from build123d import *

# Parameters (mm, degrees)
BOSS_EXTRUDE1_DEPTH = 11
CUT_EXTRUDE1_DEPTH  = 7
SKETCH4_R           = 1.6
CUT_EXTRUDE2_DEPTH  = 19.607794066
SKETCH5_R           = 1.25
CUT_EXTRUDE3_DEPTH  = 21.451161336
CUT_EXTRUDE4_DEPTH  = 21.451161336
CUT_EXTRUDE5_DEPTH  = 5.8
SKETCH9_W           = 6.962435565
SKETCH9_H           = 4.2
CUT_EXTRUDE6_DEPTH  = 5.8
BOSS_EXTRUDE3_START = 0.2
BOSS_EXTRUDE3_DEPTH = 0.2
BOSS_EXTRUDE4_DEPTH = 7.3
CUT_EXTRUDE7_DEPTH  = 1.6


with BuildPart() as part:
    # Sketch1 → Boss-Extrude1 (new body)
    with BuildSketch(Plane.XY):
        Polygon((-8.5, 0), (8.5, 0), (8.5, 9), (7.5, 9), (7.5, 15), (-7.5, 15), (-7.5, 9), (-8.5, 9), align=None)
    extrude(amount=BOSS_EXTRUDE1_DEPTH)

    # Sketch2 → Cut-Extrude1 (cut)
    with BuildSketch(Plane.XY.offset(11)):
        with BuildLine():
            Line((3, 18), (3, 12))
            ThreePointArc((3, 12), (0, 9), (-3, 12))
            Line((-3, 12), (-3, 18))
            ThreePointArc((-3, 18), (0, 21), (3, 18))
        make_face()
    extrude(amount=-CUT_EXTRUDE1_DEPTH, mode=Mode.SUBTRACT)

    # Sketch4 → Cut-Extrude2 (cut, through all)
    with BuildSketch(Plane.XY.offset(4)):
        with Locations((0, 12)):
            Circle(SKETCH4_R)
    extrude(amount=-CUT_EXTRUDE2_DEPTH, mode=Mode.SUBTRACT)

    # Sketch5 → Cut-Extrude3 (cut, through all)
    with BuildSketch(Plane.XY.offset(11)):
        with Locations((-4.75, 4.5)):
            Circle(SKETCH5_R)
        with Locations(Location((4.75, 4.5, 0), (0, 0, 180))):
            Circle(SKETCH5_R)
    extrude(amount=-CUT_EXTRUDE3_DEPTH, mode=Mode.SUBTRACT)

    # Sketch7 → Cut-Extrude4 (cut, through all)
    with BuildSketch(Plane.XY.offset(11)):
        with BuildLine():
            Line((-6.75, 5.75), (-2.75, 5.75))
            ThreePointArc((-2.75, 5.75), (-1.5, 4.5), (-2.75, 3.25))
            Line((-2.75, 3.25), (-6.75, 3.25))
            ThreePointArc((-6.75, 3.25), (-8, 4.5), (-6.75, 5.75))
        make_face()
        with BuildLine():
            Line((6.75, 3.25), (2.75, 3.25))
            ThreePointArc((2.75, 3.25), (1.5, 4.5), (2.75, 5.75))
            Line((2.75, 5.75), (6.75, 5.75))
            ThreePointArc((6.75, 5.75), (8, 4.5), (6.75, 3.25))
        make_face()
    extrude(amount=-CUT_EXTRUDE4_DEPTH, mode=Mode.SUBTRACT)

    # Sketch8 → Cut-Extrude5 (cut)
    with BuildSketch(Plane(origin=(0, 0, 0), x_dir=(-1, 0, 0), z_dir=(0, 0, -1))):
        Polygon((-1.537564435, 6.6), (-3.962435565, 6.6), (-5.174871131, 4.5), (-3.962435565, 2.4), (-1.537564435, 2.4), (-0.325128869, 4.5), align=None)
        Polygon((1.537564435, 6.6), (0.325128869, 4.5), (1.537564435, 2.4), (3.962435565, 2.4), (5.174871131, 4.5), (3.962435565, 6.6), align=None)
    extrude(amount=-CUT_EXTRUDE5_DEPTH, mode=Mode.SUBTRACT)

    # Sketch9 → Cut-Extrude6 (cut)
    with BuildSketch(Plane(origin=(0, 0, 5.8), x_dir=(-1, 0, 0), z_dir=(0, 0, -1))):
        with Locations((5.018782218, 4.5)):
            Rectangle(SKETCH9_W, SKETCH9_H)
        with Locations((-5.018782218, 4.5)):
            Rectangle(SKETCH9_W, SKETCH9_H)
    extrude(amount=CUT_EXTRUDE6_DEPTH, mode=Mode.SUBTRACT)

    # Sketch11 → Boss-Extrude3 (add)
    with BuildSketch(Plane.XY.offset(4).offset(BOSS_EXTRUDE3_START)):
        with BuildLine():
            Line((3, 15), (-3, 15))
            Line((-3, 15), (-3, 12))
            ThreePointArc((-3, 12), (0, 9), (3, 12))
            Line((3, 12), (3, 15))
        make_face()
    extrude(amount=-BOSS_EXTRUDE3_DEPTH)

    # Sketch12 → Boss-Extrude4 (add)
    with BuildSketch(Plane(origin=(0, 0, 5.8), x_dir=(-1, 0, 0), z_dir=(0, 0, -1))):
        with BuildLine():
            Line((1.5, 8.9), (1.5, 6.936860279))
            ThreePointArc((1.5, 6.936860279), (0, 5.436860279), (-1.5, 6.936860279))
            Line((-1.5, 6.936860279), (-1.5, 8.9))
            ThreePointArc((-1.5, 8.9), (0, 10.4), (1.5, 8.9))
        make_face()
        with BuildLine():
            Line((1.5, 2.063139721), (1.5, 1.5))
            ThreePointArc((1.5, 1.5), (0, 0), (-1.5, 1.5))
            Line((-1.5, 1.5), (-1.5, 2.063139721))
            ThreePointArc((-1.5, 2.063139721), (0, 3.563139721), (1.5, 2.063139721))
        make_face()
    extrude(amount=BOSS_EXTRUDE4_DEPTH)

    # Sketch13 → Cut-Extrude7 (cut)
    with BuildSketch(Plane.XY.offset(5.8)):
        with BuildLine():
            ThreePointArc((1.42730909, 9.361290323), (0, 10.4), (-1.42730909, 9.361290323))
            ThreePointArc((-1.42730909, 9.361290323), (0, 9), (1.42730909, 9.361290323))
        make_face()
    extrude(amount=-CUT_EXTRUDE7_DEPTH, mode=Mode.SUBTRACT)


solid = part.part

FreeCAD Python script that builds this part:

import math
import FreeCAD as App
import Part
import Sketcher

V = App.Vector
Q = App.Units.Quantity


def add_polygon(sketch, points):
    """Adds a closed chain of lines whose ends are joined by coincident constraints."""
    first, n = sketch.GeometryCount, len(points)
    for a, b in zip(points, points[1:] + points[:1]):
        sketch.addGeometry(Part.LineSegment(App.Vector(*a, 0), App.Vector(*b, 0)), False)
    for i in range(n):
        sketch.addConstraint(Sketcher.Constraint("Coincident", first + i, 2, first + (i + 1) % n, 1))

doc = App.newDocument("Part")
body = doc.addObject("PartDesign::Body", "Body")

# Sketch on XY plane
sketch1 = doc.addObject("Sketcher::SketchObject", "Sketch")
body.addObject(sketch1)
sketch1.AttachmentSupport = (doc.XY_Plane, [""])
sketch1.MapMode = "FlatFace"
add_polygon(sketch1, [(-8.5, 0), (8.5, 0), (8.5, 9), (7.5, 9), (7.5, 15), (-7.5, 15), (-7.5, 9), (-8.5, 9)])  # lines 0-7
sketch1.addConstraint(Sketcher.Constraint("Horizontal", 0))
sketch1.addConstraint(Sketcher.Constraint("Vertical", 1))
sketch1.addConstraint(Sketcher.Constraint("Horizontal", 2))
sketch1.addConstraint(Sketcher.Constraint("Vertical", 3))
sketch1.addConstraint(Sketcher.Constraint("Horizontal", 4))
sketch1.addConstraint(Sketcher.Constraint("Vertical", 5))
sketch1.addConstraint(Sketcher.Constraint("Horizontal", 6))
sketch1.addConstraint(Sketcher.Constraint("Vertical", 7))
sketch1.addConstraint(Sketcher.Constraint("Symmetric", 0, 2, 7, 2, -1, 1))
sketch1.addConstraint(Sketcher.Constraint("Symmetric", 2, 2, 5, 2, -2))
sketch1.addConstraint(Sketcher.Constraint("DistanceX", 0, 1, 0, 2, 17.0))
sketch1.addConstraint(Sketcher.Constraint("DistanceX", 2, 2, 2, 1, 1.0))
sketch1.addConstraint(Sketcher.Constraint("DistanceY", 1, 1, 1, 2, 9.0))
sketch1.addConstraint(Sketcher.Constraint("DistanceY", 3, 1, 3, 2, 6.0))
pad1 = doc.addObject("PartDesign::Pad", "Pad")
body.addObject(pad1)
pad1.Profile = sketch1
pad1.Length = 11

# Sketch on XY plane
sketch2 = doc.addObject("Sketcher::SketchObject", "Sketch001")
body.addObject(sketch2)
sketch2.AttachmentSupport = (doc.XY_Plane, [""])
sketch2.MapMode = "FlatFace"
sketch2.AttachmentOffset = App.Placement(V(0, 0, 11), App.Rotation())
sketch2.addGeometry(Part.LineSegment(V(3, 12, 0), V(3, 18, 0)), False)
sketch2.addGeometry(Part.ArcOfCircle(Part.Circle(V(0, 18, 0), V(0, 0, 1), 3), math.radians(0), math.radians(180)), False)
sketch2.addGeometry(Part.LineSegment(V(-3, 18, 0), V(-3, 12, 0)), False)
sketch2.addGeometry(Part.ArcOfCircle(Part.Circle(V(0, 12, 0), V(0, 0, 1), 3), math.radians(180), math.radians(360)), False)
sketch2.addConstraint(Sketcher.Constraint("Tangent", 0, 2, 1, 1))
sketch2.addConstraint(Sketcher.Constraint("Tangent", 1, 2, 2, 1))
sketch2.addConstraint(Sketcher.Constraint("Tangent", 2, 2, 3, 1))
sketch2.addConstraint(Sketcher.Constraint("Tangent", 3, 2, 0, 1))
sketch2.addConstraint(Sketcher.Constraint("Vertical", 0))
sketch2.addConstraint(Sketcher.Constraint("Vertical", 2))
sketch2.addConstraint(Sketcher.Constraint("PointOnObject", 1, 3, -2))
sketch2.addConstraint(Sketcher.Constraint("Radius", 1, 3.0))
sketch2.addConstraint(Sketcher.Constraint("DistanceY", 0, 1, 0, 2, 6.0))
sketch2.addConstraint(Sketcher.Constraint("DistanceY", -1, 1, 1, 3, 18.0))
pocket1 = doc.addObject("PartDesign::Pocket", "Pocket")
body.addObject(pocket1)
pocket1.Profile = sketch2
pocket1.Length = 7

# Sketch on XY plane
sketch3 = doc.addObject("Sketcher::SketchObject", "Sketch002")
body.addObject(sketch3)
sketch3.AttachmentSupport = (doc.XY_Plane, [""])
sketch3.MapMode = "FlatFace"
sketch3.AttachmentOffset = App.Placement(V(0, 0, 4), App.Rotation())
sketch3.addGeometry(Part.Circle(V(0, 12, 0), V(0, 0, 1), 1.6), False)
sketch3.addConstraint(Sketcher.Constraint("PointOnObject", 0, 3, -2))
sketch3.addConstraint(Sketcher.Constraint("Diameter", 0, 3.2))
sketch3.addConstraint(Sketcher.Constraint("DistanceY", -1, 1, 0, 3, 12.0))
pocket2 = doc.addObject("PartDesign::Pocket", "Pocket001")
body.addObject(pocket2)
pocket2.Profile = sketch3
pocket2.Type = "ThroughAll"

# Sketch on XY plane
sketch4 = doc.addObject("Sketcher::SketchObject", "Sketch003")
body.addObject(sketch4)
sketch4.AttachmentSupport = (doc.XY_Plane, [""])
sketch4.MapMode = "FlatFace"
sketch4.AttachmentOffset = App.Placement(V(0, 0, 11), App.Rotation())
sketch4.addGeometry(Part.Circle(V(-4.8, 4.5, 0), V(0, 0, 1), 1.2), False)
sketch4.addGeometry(Part.Circle(V(4.8, 4.5, 0), V(0, 0, 1), 1.2), False)
sketch4.addConstraint(Sketcher.Constraint("Equal", 0, 1))
sketch4.addConstraint(Sketcher.Constraint("Symmetric", 0, 3, 1, 3, -2))
sketch4.addConstraint(Sketcher.Constraint("Diameter", 0, 2.5))
sketch4.addConstraint(Sketcher.Constraint("DistanceY", -1, 1, 0, 3, 4.5))
sketch4.addConstraint(Sketcher.Constraint("DistanceX", 0, 3, 1, 3, 9.5))
pocket3 = doc.addObject("PartDesign::Pocket", "Pocket002")
body.addObject(pocket3)
pocket3.Profile = sketch4
pocket3.Type = "ThroughAll"

# Sketch on XY plane
sketch5 = doc.addObject("Sketcher::SketchObject", "Sketch004")
body.addObject(sketch5)
sketch5.AttachmentSupport = (doc.XY_Plane, [""])
sketch5.MapMode = "FlatFace"
sketch5.AttachmentOffset = App.Placement(V(0, 0, 11), App.Rotation())
sketch5.addGeometry(Part.LineSegment(V(-2.8, 5.8, 0), V(-6.8, 5.8, 0)), False)
sketch5.addGeometry(Part.ArcOfCircle(Part.Circle(V(-6.8, 4.5, 0), V(0, 0, 1), 1.2), math.radians(90), math.radians(270)), False)
sketch5.addGeometry(Part.LineSegment(V(-6.8, 3.2, 0), V(-2.8, 3.2, 0)), False)
sketch5.addGeometry(Part.ArcOfCircle(Part.Circle(V(-2.8, 4.5, 0), V(0, 0, 1), 1.2), math.radians(-90), math.radians(90)), False)
sketch5.addGeometry(Part.LineSegment(V(2.8, 3.2, 0), V(6.8, 3.2, 0)), False)
sketch5.addGeometry(Part.ArcOfCircle(Part.Circle(V(6.8, 4.5, 0), V(0, 0, 1), 1.2), math.radians(-90), math.radians(90)), False)
sketch5.addGeometry(Part.LineSegment(V(6.8, 5.8, 0), V(2.8, 5.8, 0)), False)
sketch5.addGeometry(Part.ArcOfCircle(Part.Circle(V(2.8, 4.5, 0), V(0, 0, 1), 1.2), math.radians(90), math.radians(270)), False)
sketch5.addConstraint(Sketcher.Constraint("Tangent", 0, 2, 1, 1))
sketch5.addConstraint(Sketcher.Constraint("Tangent", 1, 2, 2, 1))
sketch5.addConstraint(Sketcher.Constraint("Tangent", 2, 2, 3, 1))
sketch5.addConstraint(Sketcher.Constraint("Tangent", 3, 2, 0, 1))
sketch5.addConstraint(Sketcher.Constraint("Tangent", 4, 2, 5, 1))
sketch5.addConstraint(Sketcher.Constraint("Tangent", 5, 2, 6, 1))
sketch5.addConstraint(Sketcher.Constraint("Tangent", 6, 2, 7, 1))
sketch5.addConstraint(Sketcher.Constraint("Tangent", 7, 2, 4, 1))
sketch5.addConstraint(Sketcher.Constraint("Horizontal", 0))
sketch5.addConstraint(Sketcher.Constraint("Horizontal", 2))
sketch5.addConstraint(Sketcher.Constraint("Horizontal", 4))
sketch5.addConstraint(Sketcher.Constraint("Horizontal", 6))
sketch5.addConstraint(Sketcher.Constraint("Equal", 3, 5))
sketch5.addConstraint(Sketcher.Constraint("Symmetric", 1, 3, 5, 3, -2))
sketch5.addConstraint(Sketcher.Constraint("Equal", 2, 4))
sketch5.addConstraint(Sketcher.Constraint("DistanceX", 0, 2, 0, 1, 4.0))
sketch5.addConstraint(Sketcher.Constraint("Radius", 1, 1.25))
sketch5.addConstraint(Sketcher.Constraint("DistanceY", -1, 1, 1, 3, 4.5))
sketch5.addConstraint(Sketcher.Constraint("DistanceX", 3, 3, 5, 3, 9.5))
pocket4 = doc.addObject("PartDesign::Pocket", "Pocket003")
body.addObject(pocket4)
pocket4.Profile = sketch5
pocket4.Type = "ThroughAll"

# Sketch on XY plane
sketch6 = doc.addObject("Sketcher::SketchObject", "Sketch005")
body.addObject(sketch6)
sketch6.AttachmentSupport = (doc.XY_Plane, [""])
sketch6.MapMode = "FlatFace"
add_polygon(sketch6, [(1.5, 6.6), (4, 6.6), (5.2, 4.5), (4, 2.4), (1.5, 2.4), (0.3, 4.5)])  # lines 0-5
add_polygon(sketch6, [(-1.5, 6.6), (-0.3, 4.5), (-1.5, 2.4), (-4, 2.4), (-5.2, 4.5), (-4, 6.6)])  # lines 6-11
sketch6.addConstraint(Sketcher.Constraint("Horizontal", 0))
sketch6.addConstraint(Sketcher.Constraint("Horizontal", 3))
sketch6.addConstraint(Sketcher.Constraint("Horizontal", 8))
sketch6.addConstraint(Sketcher.Constraint("Horizontal", 11))
sketch6.addConstraint(Sketcher.Constraint("Symmetric", 4, 2, 6, 2, -2))
sketch6.addConstraint(Sketcher.Constraint("Symmetric", 3, 2, 7, 2, -2))
sketch6.addConstraint(Sketcher.Constraint("Symmetric", 1, 2, 9, 2, -2))
sketch6.addConstraint(Sketcher.Constraint("Symmetric", 0, 2, 10, 2, -2))
sketch6.addConstraint(Sketcher.Constraint("Parallel", 1, 4))
sketch6.addConstraint(Sketcher.Constraint("Parallel", 2, 5))
sketch6.addConstraint(Sketcher.Constraint("Parallel", 4, 6))
sketch6.addConstraint(Sketcher.Constraint("Parallel", 5, 7))
sketch6.addConstraint(Sketcher.Constraint("Parallel", 6, 9))
sketch6.addConstraint(Sketcher.Constraint("Horizontal", 1, 2, 4, 2))
sketch6.addConstraint(Sketcher.Constraint("Vertical", 0, 2, 2, 2))
sketch6.addConstraint(Sketcher.Constraint("Angle", 1, Q("-60 deg")))
sketch6.addConstraint(Sketcher.Constraint("DistanceY", -1, 1, 0, 2, 6.6))
sketch6.addConstraint(Sketcher.Constraint("DistanceY", -1, 1, 1, 2, 4.5))
sketch6.addConstraint(Sketcher.Constraint("DistanceX", 7, 2, 2, 2, 5.5))
sketch6.addConstraint(Sketcher.Constraint("DistanceX", 0, 1, 0, 2, 2.424871))
pocket5 = doc.addObject("PartDesign::Pocket", "Pocket004")
body.addObject(pocket5)
pocket5.Profile = sketch6
pocket5.Length = 5.8
pocket5.Reversed = True

# Sketch on XY plane
sketch7 = doc.addObject("Sketcher::SketchObject", "Sketch006")
body.addObject(sketch7)
sketch7.AttachmentSupport = (doc.XY_Plane, [""])
sketch7.MapMode = "FlatFace"
sketch7.AttachmentOffset = App.Placement(V(0, 0, 5.8), App.Rotation())
add_polygon(sketch7, [(-1.5, 6.6), (-1.5, 2.4), (-8.5, 2.4), (-8.5, 6.6)])  # lines 0-3
add_polygon(sketch7, [(8.5, 6.6), (8.5, 2.4), (1.5, 2.4), (1.5, 6.6)])  # lines 4-7
sketch7.addConstraint(Sketcher.Constraint("Vertical", 0))
sketch7.addConstraint(Sketcher.Constraint("Horizontal", 1))
sketch7.addConstraint(Sketcher.Constraint("Vertical", 2))
sketch7.addConstraint(Sketcher.Constraint("Horizontal", 3))
sketch7.addConstraint(Sketcher.Constraint("Vertical", 4))
sketch7.addConstraint(Sketcher.Constraint("Horizontal", 5))
sketch7.addConstraint(Sketcher.Constraint("Vertical", 6))
sketch7.addConstraint(Sketcher.Constraint("Horizontal", 7))
sketch7.addConstraint(Sketcher.Constraint("Symmetric", 1, 2, 4, 2, -2))
sketch7.addConstraint(Sketcher.Constraint("Symmetric", 3, 2, 6, 2, -2))
sketch7.addConstraint(Sketcher.Constraint("DistanceY", 0, 2, 0, 1, 4.2))
sketch7.addConstraint(Sketcher.Constraint("DistanceX", 1, 2, 4, 2, 17.0))
sketch7.addConstraint(Sketcher.Constraint("DistanceY", -1, 1, 0, 2, 2.4))
sketch7.addConstraint(Sketcher.Constraint("DistanceX", 1, 2, 1, 1, 6.962436))
pocket6 = doc.addObject("PartDesign::Pocket", "Pocket005")
body.addObject(pocket6)
pocket6.Profile = sketch7
pocket6.Length = 5.8

# Sketch on XY plane
sketch8 = doc.addObject("Sketcher::SketchObject", "Sketch007")
body.addObject(sketch8)
sketch8.AttachmentSupport = (doc.XY_Plane, [""])
sketch8.MapMode = "FlatFace"
sketch8.AttachmentOffset = App.Placement(V(0, 0, 4.2), App.Rotation())
sketch8.addGeometry(Part.LineSegment(V(3, 15, 0), V(-3, 15, 0)), False)
sketch8.addGeometry(Part.LineSegment(V(-3, 15, 0), V(-3, 12, 0)), False)
sketch8.addGeometry(Part.ArcOfCircle(Part.Circle(V(0, 12, 0), V(0, 0, 1), 3), math.radians(180), math.radians(360)), False)
sketch8.addGeometry(Part.LineSegment(V(3, 12, 0), V(3, 15, 0)), False)
sketch8.addConstraint(Sketcher.Constraint("Coincident", 0, 2, 1, 1))
sketch8.addConstraint(Sketcher.Constraint("Tangent", 1, 2, 2, 1))
sketch8.addConstraint(Sketcher.Constraint("Tangent", 2, 2, 3, 1))
sketch8.addConstraint(Sketcher.Constraint("Coincident", 3, 2, 0, 1))
sketch8.addConstraint(Sketcher.Constraint("Horizontal", 0))
sketch8.addConstraint(Sketcher.Constraint("Vertical", 1))
sketch8.addConstraint(Sketcher.Constraint("Vertical", 3))
sketch8.addConstraint(Sketcher.Constraint("PointOnObject", 2, 3, -2))
sketch8.addConstraint(Sketcher.Constraint("Radius", 2, 3.0))
sketch8.addConstraint(Sketcher.Constraint("DistanceY", 1, 2, 1, 1, 3.0))
sketch8.addConstraint(Sketcher.Constraint("DistanceY", -1, 1, 2, 3, 12.0))
pad2 = doc.addObject("PartDesign::Pad", "Pad001")
body.addObject(pad2)
pad2.Profile = sketch8
pad2.Length = 0.2
pad2.Reversed = True

# Sketch on XY plane
sketch9 = doc.addObject("Sketcher::SketchObject", "Sketch008")
body.addObject(sketch9)
sketch9.AttachmentSupport = (doc.XY_Plane, [""])
sketch9.MapMode = "FlatFace"
sketch9.AttachmentOffset = App.Placement(V(0, 0, 5.8), App.Rotation())
sketch9.addGeometry(Part.LineSegment(V(-1.5, 6.9, 0), V(-1.5, 8.9, 0)), False)
sketch9.addGeometry(Part.ArcOfCircle(Part.Circle(V(0, 8.9, 0), V(0, 0, 1), 1.5), math.radians(0), math.radians(180)), False)
sketch9.addGeometry(Part.LineSegment(V(1.5, 8.9, 0), V(1.5, 6.9, 0)), False)
sketch9.addGeometry(Part.ArcOfCircle(Part.Circle(V(0, 6.9, 0), V(0, 0, 1), 1.5), math.radians(180), math.radians(360)), False)
sketch9.addGeometry(Part.LineSegment(V(-1.5, 1.5, 0), V(-1.5, 2.1, 0)), False)
sketch9.addGeometry(Part.ArcOfCircle(Part.Circle(V(0, 2.1, 0), V(0, 0, 1), 1.5), math.radians(0), math.radians(180)), False)
sketch9.addGeometry(Part.LineSegment(V(1.5, 2.1, 0), V(1.5, 1.5, 0)), False)
sketch9.addGeometry(Part.ArcOfCircle(Part.Circle(V(0, 1.5, 0), V(0, 0, 1), 1.5), math.radians(180), math.radians(360)), False)
sketch9.addConstraint(Sketcher.Constraint("Tangent", 0, 2, 1, 2))
sketch9.addConstraint(Sketcher.Constraint("Tangent", 1, 1, 2, 1))
sketch9.addConstraint(Sketcher.Constraint("Tangent", 2, 2, 3, 2))
sketch9.addConstraint(Sketcher.Constraint("Tangent", 3, 1, 0, 1))
sketch9.addConstraint(Sketcher.Constraint("Tangent", 4, 2, 5, 2))
sketch9.addConstraint(Sketcher.Constraint("Tangent", 5, 1, 6, 1))
sketch9.addConstraint(Sketcher.Constraint("Tangent", 6, 2, 7, 2))
sketch9.addConstraint(Sketcher.Constraint("Tangent", 7, 1, 4, 1))
sketch9.addConstraint(Sketcher.Constraint("Vertical", 0))
sketch9.addConstraint(Sketcher.Constraint("Vertical", 2))
sketch9.addConstraint(Sketcher.Constraint("Vertical", 4))
sketch9.addConstraint(Sketcher.Constraint("Vertical", 6))
sketch9.addConstraint(Sketcher.Constraint("Equal", 3, 5))
sketch9.addConstraint(Sketcher.Constraint("PointOnObject", 1, 3, -2))
sketch9.addConstraint(Sketcher.Constraint("PointOnObject", 5, 3, -2))
sketch9.addConstraint(Sketcher.Constraint("Radius", 1, 1.5))
sketch9.addConstraint(Sketcher.Constraint("DistanceY", -1, 1, 1, 3, 8.9))
sketch9.addConstraint(Sketcher.Constraint("DistanceY", -1, 1, 7, 3, 1.5))
sketch9.addConstraint(Sketcher.Constraint("DistanceY", 0, 1, 0, 2, 1.96314))
sketch9.addConstraint(Sketcher.Constraint("DistanceY", 4, 1, 4, 2, 0.56314))
pad3 = doc.addObject("PartDesign::Pad", "Pad002")
body.addObject(pad3)
pad3.Profile = sketch9
pad3.Length = 7.3
pad3.Reversed = True

# Sketch on XY plane
sketch10 = doc.addObject("Sketcher::SketchObject", "Sketch009")
body.addObject(sketch10)
sketch10.AttachmentSupport = (doc.XY_Plane, [""])
sketch10.MapMode = "FlatFace"
sketch10.AttachmentOffset = App.Placement(V(0, 0, 5.8), App.Rotation())
sketch10.addGeometry(Part.ArcOfCircle(Part.Circle(V(0, 8.9, 0), V(0, 0, 1), 1.5), math.radians(18), math.radians(162)), False)
sketch10.addGeometry(Part.ArcOfCircle(Part.Circle(V(0, 12, 0), V(0, 0, 1), 3), math.radians(-118), math.radians(-62)), False)
sketch10.addConstraint(Sketcher.Constraint("Coincident", 0, 1, 1, 2))
sketch10.addConstraint(Sketcher.Constraint("Coincident", 1, 1, 0, 2))
sketch10.addConstraint(Sketcher.Constraint("Symmetric", 0, 1, 1, 1, -2))
sketch10.addConstraint(Sketcher.Constraint("Radius", 1, 3.0))
sketch10.addConstraint(Sketcher.Constraint("Radius", 0, 1.5))
sketch10.addConstraint(Sketcher.Constraint("DistanceY", -1, 1, 1, 3, 12.0))
sketch10.addConstraint(Sketcher.Constraint("DistanceY", -1, 1, 0, 3, 8.9))
pocket7 = doc.addObject("PartDesign::Pocket", "Pocket006")
body.addObject(pocket7)
pocket7.Profile = sketch10
pocket7.Length = 1.6

doc.recompute()
